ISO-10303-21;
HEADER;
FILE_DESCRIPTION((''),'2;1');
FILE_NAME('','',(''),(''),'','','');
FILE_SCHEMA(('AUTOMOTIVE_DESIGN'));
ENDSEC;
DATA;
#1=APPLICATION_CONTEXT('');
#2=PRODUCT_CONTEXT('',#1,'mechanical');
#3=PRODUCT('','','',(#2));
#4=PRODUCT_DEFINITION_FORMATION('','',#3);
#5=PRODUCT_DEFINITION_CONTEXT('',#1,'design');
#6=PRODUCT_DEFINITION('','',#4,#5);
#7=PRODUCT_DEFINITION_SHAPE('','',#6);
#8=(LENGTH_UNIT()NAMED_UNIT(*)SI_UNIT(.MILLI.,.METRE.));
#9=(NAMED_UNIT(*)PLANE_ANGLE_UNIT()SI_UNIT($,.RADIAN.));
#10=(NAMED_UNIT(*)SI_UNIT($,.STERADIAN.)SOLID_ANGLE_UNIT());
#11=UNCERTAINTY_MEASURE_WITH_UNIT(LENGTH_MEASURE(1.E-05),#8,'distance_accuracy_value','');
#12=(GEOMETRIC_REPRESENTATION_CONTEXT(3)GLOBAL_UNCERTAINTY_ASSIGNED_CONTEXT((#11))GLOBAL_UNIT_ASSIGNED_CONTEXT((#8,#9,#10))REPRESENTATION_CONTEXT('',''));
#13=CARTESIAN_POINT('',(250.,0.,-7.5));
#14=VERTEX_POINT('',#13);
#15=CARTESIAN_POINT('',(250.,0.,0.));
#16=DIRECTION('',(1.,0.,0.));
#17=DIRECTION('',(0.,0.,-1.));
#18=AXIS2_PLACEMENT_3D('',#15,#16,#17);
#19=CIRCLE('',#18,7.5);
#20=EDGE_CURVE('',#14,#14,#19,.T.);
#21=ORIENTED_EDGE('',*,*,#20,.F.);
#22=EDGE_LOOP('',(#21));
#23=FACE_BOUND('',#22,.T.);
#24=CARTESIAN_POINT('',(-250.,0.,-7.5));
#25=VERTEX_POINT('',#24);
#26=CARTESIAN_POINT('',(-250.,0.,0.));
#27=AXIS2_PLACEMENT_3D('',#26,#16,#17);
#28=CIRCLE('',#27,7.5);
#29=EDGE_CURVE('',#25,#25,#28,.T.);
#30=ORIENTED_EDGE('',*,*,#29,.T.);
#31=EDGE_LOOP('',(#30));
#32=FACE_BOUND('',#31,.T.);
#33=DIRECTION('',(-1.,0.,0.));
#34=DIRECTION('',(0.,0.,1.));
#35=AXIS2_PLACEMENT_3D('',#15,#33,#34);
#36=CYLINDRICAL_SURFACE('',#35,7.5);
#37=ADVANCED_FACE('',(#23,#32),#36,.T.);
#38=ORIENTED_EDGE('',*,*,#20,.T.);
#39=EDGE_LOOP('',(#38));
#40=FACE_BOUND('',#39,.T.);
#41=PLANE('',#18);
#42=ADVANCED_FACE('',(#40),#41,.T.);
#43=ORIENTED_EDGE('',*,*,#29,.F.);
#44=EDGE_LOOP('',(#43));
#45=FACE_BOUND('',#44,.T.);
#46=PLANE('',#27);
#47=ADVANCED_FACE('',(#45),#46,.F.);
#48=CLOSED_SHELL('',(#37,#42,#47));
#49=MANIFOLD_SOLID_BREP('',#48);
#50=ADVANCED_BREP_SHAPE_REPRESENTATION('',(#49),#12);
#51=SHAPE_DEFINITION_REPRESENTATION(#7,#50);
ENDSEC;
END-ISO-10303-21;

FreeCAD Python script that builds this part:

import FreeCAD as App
import Part
import Sketcher
from FreeCAD import Vector

doc = App.newDocument("Part")
body = doc.addObject("PartDesign::Body", "Body")

sketch1 = doc.addObject("Sketcher::SketchObject", "Sketch")
body.addObject(sketch1)
sketch1.AttachmentSupport = (doc.YZ_Plane, [""])
sketch1.MapMode = "FlatFace"
sketch1.addGeometry(Part.Circle(Vector(0, 0, 0), Vector(0, 0, 1), 8), False)
sketch1.addConstraint(Sketcher.Constraint("Coincident", 0, 3, -1, 1))
sketch1.addConstraint(Sketcher.Constraint("Diameter", 0, 15.0))
pad1 = doc.addObject("PartDesign::Pad", "Pad")
body.addObject(pad1)
pad1.Profile = sketch1
pad1.Length = 500
pad1.Midplane = True

doc.recompute()
